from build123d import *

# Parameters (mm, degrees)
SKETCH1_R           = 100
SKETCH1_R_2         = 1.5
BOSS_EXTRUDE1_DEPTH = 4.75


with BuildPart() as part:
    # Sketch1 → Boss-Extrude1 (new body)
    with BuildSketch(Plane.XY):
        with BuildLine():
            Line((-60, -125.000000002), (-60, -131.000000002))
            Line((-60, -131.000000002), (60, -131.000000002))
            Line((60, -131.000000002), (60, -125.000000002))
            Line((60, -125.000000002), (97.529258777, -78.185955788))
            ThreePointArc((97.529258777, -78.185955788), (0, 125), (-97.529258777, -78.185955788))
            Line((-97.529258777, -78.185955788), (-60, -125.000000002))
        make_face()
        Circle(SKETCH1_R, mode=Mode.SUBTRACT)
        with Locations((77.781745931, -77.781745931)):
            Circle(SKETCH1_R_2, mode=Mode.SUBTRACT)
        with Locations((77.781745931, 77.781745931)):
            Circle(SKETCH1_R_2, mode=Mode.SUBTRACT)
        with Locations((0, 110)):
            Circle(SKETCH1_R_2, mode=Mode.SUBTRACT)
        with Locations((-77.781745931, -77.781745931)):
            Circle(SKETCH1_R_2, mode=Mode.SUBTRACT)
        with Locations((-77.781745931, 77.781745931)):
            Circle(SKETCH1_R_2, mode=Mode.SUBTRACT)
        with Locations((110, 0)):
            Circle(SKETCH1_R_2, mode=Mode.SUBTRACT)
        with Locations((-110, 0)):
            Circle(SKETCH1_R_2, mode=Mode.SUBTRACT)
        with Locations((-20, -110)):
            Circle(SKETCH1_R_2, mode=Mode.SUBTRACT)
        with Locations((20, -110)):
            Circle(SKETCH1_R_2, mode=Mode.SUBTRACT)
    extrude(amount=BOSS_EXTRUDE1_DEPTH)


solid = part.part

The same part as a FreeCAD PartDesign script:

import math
import FreeCAD as App
import Part
import Sketcher
from FreeCAD import Vector
Q = App.Units.Quantity

doc = App.newDocument("Part")
body = doc.addObject("PartDesign::Body", "Body")

# Sketch on XY plane
sketch1 = doc.addObject("Sketcher::SketchObject", "Sketch")
body.addObject(sketch1)
sketch1.AttachmentSupport = (doc.XY_Plane, [""])
sketch1.MapMode = "FlatFace"
sketch1.addGeometry([
    Part.LineSegment(Vector(-60, -125, 0), Vector(-60, -131, 0)),  # 0
    Part.LineSegment(Vector(-60, -131, 0), Vector(60, -131, 0)),  # 1
    Part.LineSegment(Vector(60, -131, 0), Vector(60, -125, 0)),  # 2
    Part.LineSegment(Vector(60, -125, 0), Vector(97.5, -78.2, 0)),  # 3
    Part.ArcOfCircle(Part.Circle(Vector(0, 0, 0), Vector(0, 0, 1), 125), math.radians(-39), math.radians(219)),  # 4
    Part.LineSegment(Vector(-97.5, -78.2, 0), Vector(-60, -125, 0)),  # 5
    Part.Circle(Vector(-77.8, -77.8, 0), Vector(0, 0, 1), 1.5),  # 6
    Part.Circle(Vector(-20, -110, 0), Vector(0, 0, 1), 1.5),  # 7
    Part.Circle(Vector(20, -110, 0), Vector(0, 0, 1), 1.5),  # 8
    Part.Circle(Vector(77.8, -77.8, 0), Vector(0, 0, 1), 1.5),  # 9
    Part.Circle(Vector(-110, 0, 0), Vector(0, 0, 1), 1.5),  # 10
    Part.Circle(Vector(-77.8, 77.8, 0), Vector(0, 0, 1), 1.5),  # 11
    Part.Circle(Vector(0, 0, 0), Vector(0, 0, 1), 100),  # 12
    Part.Circle(Vector(110, 0, 0), Vector(0, 0, 1), 1.5),  # 13
    Part.Circle(Vector(0, 110, 0), Vector(0, 0, 1), 1.5),  # 14
    Part.Circle(Vector(77.8, 77.8, 0), Vector(0, 0, 1), 1.5),  # 15
], False)
sketch1.addConstraint([
    Sketcher.Constraint("Coincident", 0, 2, 1, 1),
    Sketcher.Constraint("Coincident", 1, 2, 2, 1),
    Sketcher.Constraint("Coincident", 2, 2, 3, 1),
    Sketcher.Constraint("Tangent", 3, 2, 4, 1),
    Sketcher.Constraint("Tangent", 4, 2, 5, 1),
    Sketcher.Constraint("Coincident", 5, 2, 0, 1),
    Sketcher.Constraint("Vertical", 0),
    Sketcher.Constraint("Horizontal", 1),
    Sketcher.Constraint("Vertical", 2),
    Sketcher.Constraint("Coincident", 4, 3, -1, 1),
    Sketcher.Constraint("Coincident", 12, 3, -1, 1),
    Sketcher.Constraint("Equal", 6, 7),
    Sketcher.Constraint("Equal", 7, 8),
    Sketcher.Constraint("Equal", 8, 9),
    Sketcher.Constraint("Equal", 9, 10),
    Sketcher.Constraint("Equal", 10, 11),
    Sketcher.Constraint("Equal", 11, 13),
    Sketcher.Constraint("Equal", 13, 14),
    Sketcher.Constraint("Equal", 14, 15),
    Sketcher.Constraint("Symmetric", 9, 3, 11, 3, -1, 1),
    Sketcher.Constraint("Symmetric", 10, 3, 13, 3, -1, 1),
    Sketcher.Constraint("Symmetric", 6, 3, 15, 3, -1, 1),
    Sketcher.Constraint("Symmetric", 7, 3, 8, 3, -2),
    Sketcher.Constraint("Symmetric", 6, 3, 9, 3, -2),
    Sketcher.Constraint("Symmetric", 2, 2, 5, 2, -2),
    Sketcher.Constraint("PointOnObject", 10, 3, -1),
    Sketcher.Constraint("PointOnObject", 14, 3, -2),
    Sketcher.Constraint("Diameter", 6, Q("3 mm")),
    Sketcher.Constraint("Diameter", 12, Q("200 mm")),
    Sketcher.Constraint("Radius", 4, Q("125 mm")),
    Sketcher.Constraint("DistanceX", 1, 1, 1, 2, Q("120 mm")),
    Sketcher.Constraint("DistanceY", 0, 2, 0, 1, Q("6 mm")),
    Sketcher.Constraint("Distance", 3, Q("60 mm")),
    Sketcher.Constraint("DistanceX", 7, 3, -1, 1, Q("20 mm")),
    Sketcher.Constraint("DistanceY", 7, 3, -1, 1, Q("110 mm")),
    Sketcher.Constraint("DistanceX", 10, 3, -1, 1, Q("110 mm")),
    Sketcher.Constraint("DistanceY", -1, 1, 14, 3, Q("110 mm")),
    Sketcher.Constraint("DistanceX", 6, 3, 9, 3, Q("155.563492 mm")),
    Sketcher.Constraint("DistanceY", 6, 3, 11, 3, Q("155.563492 mm")),
])
pad1 = doc.addObject("PartDesign::Pad", "Pad")
body.addObject(pad1)
pad1.Profile = sketch1
pad1.Length = 4.75

doc.recompute()
